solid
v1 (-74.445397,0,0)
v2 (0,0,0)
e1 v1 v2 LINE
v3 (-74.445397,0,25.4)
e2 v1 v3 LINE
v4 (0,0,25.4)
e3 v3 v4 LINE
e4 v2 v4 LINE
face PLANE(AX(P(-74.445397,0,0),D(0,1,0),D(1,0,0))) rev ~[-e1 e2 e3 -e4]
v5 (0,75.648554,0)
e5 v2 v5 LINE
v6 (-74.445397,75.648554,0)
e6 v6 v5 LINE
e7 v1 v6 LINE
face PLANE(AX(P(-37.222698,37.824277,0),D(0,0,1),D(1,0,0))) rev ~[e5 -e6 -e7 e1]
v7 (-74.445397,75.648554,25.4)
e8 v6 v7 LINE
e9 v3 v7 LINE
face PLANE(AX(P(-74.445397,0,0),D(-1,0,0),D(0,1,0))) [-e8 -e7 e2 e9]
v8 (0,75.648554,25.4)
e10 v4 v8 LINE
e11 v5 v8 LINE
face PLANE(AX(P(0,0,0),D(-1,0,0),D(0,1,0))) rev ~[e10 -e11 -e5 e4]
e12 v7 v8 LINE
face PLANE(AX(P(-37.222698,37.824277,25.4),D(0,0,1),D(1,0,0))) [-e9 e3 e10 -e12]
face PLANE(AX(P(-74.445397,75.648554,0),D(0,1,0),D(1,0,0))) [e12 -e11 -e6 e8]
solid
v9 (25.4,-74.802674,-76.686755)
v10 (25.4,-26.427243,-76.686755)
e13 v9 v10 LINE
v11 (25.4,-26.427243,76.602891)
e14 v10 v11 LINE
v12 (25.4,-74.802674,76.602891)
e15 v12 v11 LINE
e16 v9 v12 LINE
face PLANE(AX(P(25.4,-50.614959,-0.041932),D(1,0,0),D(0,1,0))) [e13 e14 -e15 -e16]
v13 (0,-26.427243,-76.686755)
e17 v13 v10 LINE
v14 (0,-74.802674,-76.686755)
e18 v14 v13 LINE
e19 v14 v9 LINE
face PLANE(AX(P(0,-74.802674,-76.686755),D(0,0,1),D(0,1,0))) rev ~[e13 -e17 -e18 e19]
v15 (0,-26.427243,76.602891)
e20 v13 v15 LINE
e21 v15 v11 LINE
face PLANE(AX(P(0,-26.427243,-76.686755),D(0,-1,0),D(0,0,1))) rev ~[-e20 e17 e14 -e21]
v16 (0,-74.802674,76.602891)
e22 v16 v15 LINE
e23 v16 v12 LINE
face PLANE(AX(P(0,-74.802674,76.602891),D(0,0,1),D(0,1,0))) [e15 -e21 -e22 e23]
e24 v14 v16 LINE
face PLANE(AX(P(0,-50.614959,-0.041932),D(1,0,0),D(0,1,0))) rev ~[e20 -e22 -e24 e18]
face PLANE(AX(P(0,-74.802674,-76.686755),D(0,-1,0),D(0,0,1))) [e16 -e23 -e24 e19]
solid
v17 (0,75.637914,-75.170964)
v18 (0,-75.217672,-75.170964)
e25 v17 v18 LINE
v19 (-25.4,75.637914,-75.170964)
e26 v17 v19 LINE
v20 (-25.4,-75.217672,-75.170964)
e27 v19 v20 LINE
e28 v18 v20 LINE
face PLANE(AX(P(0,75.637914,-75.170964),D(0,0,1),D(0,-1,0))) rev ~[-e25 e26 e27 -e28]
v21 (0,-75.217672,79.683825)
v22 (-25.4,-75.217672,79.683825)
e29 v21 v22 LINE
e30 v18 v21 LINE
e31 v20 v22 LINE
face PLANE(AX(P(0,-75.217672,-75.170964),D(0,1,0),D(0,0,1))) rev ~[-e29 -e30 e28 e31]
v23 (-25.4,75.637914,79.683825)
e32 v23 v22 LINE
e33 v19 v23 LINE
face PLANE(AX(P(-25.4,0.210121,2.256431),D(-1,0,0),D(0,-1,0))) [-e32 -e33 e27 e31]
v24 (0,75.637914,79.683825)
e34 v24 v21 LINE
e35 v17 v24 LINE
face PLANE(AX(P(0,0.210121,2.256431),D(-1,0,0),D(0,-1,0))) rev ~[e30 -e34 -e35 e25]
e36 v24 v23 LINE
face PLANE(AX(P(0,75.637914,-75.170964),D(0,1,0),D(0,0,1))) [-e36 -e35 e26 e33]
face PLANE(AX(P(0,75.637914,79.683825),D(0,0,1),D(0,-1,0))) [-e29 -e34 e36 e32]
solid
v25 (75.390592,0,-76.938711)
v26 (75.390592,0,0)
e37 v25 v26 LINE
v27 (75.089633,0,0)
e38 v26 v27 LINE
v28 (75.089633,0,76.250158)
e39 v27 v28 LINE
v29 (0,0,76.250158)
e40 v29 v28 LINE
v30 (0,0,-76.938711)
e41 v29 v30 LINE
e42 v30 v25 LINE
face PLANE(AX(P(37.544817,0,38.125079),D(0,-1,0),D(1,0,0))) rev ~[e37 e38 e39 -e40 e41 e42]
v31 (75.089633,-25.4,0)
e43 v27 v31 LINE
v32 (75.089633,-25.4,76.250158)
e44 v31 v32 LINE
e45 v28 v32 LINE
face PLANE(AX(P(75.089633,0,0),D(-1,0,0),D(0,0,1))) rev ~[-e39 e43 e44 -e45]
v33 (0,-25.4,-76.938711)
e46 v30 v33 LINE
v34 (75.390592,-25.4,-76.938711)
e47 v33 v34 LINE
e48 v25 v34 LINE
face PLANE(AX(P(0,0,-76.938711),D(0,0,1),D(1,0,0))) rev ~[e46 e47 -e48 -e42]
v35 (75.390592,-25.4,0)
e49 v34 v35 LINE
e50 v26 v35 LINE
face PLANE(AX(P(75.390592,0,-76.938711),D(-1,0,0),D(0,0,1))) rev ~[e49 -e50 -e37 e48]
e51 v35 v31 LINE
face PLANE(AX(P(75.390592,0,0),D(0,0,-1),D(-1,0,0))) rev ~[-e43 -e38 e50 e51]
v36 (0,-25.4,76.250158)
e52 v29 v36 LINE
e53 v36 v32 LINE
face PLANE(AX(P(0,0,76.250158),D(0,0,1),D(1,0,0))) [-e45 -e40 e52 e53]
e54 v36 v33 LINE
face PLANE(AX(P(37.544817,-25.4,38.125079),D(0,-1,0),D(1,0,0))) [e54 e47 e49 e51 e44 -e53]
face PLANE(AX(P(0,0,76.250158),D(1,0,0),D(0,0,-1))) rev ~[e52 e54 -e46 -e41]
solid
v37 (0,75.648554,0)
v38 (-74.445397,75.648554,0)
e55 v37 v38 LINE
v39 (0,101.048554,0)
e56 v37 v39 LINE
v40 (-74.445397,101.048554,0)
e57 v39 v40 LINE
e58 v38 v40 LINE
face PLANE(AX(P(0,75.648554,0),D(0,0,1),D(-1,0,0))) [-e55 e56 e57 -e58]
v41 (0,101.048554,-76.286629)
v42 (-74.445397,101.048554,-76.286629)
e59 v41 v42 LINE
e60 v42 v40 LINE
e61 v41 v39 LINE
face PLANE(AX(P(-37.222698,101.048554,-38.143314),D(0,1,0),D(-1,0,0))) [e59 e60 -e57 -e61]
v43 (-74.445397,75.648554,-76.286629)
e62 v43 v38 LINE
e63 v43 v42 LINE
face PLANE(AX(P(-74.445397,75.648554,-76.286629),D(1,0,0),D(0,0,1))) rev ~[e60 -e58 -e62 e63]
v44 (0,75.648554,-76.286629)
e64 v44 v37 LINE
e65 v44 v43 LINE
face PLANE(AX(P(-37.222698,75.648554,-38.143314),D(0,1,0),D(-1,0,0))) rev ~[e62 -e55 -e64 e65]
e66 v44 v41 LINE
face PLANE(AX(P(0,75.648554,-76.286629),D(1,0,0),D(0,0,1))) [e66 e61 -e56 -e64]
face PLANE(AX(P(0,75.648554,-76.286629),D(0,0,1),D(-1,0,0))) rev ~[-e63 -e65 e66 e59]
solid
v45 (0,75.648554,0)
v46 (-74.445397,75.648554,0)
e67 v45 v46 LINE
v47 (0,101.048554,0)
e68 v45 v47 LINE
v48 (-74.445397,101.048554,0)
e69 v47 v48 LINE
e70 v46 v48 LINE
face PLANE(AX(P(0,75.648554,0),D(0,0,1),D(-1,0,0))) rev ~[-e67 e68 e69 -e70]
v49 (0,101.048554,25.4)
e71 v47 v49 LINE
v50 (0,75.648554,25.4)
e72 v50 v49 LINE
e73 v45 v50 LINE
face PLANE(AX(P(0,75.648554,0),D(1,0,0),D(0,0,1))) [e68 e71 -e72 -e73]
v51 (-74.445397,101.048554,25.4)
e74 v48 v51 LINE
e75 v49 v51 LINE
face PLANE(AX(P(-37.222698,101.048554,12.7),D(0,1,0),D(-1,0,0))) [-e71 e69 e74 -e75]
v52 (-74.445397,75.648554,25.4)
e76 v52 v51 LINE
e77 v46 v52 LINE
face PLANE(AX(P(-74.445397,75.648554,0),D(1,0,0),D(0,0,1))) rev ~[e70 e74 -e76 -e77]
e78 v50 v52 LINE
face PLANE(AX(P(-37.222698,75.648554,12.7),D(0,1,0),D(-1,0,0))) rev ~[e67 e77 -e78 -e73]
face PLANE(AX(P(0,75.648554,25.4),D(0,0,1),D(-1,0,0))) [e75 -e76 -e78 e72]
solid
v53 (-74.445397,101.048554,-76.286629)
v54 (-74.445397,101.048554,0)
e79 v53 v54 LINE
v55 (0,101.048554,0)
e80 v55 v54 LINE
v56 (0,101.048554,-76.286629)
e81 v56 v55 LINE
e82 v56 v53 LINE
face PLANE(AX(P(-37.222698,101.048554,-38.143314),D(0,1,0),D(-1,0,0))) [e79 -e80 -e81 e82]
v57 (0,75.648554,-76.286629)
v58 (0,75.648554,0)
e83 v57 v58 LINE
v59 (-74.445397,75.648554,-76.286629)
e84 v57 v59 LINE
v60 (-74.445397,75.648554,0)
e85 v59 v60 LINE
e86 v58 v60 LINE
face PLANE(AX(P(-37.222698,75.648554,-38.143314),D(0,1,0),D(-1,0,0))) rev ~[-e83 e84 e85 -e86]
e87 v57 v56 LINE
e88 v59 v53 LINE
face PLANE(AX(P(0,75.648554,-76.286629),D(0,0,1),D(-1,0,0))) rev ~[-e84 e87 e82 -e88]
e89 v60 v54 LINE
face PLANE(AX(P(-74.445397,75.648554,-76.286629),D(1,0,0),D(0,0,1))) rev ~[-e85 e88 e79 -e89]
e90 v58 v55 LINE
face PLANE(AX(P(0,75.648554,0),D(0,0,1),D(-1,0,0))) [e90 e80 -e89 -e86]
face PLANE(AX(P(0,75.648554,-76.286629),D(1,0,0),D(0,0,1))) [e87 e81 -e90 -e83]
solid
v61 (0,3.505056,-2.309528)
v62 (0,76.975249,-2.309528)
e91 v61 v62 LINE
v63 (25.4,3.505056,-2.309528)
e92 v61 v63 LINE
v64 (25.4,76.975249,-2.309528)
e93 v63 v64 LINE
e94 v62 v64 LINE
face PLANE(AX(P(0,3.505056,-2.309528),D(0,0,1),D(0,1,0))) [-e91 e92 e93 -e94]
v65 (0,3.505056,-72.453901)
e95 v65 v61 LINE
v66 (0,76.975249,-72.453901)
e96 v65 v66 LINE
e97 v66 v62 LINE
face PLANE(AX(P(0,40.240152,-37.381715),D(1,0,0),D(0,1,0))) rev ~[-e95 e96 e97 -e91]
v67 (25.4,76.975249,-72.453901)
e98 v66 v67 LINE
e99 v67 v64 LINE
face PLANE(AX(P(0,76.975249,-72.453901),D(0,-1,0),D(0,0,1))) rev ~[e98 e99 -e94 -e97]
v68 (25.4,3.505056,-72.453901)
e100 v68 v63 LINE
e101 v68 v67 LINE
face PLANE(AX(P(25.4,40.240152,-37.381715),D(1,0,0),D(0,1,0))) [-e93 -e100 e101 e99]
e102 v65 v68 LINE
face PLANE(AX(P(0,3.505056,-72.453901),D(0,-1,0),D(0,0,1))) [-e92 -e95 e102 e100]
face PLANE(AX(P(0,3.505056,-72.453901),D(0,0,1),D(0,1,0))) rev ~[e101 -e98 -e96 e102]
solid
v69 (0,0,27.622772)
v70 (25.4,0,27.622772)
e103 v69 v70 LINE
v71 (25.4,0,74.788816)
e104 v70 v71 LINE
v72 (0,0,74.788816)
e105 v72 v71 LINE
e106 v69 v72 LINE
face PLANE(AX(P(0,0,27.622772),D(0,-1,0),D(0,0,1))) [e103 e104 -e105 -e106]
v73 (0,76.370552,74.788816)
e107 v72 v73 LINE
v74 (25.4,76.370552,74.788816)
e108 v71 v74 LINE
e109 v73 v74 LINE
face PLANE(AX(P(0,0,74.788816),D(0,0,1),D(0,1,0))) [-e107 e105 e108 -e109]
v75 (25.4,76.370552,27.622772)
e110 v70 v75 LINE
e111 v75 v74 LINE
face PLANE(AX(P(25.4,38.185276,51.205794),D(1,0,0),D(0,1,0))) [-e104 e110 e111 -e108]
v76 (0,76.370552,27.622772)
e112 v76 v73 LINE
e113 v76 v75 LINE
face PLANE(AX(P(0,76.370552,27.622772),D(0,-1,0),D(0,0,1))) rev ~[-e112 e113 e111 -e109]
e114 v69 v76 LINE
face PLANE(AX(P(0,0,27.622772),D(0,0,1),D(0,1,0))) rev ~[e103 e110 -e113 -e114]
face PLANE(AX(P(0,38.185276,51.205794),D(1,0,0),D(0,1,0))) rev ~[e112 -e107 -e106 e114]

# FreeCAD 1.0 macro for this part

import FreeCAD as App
import Part
import Sketcher

V = App.Vector
Q = App.Units.Quantity


def add_polygon(sketch, points):
    """Adds a closed chain of lines whose ends are joined by coincident constraints."""
    first, n = sketch.GeometryCount, len(points)
    for a, b in zip(points, points[1:] + points[:1]):
        sketch.addGeometry(Part.LineSegment(App.Vector(*a, 0), App.Vector(*b, 0)), False)
    for i in range(n):
        sketch.addConstraint(Sketcher.Constraint("Coincident", first + i, 2, first + (i + 1) % n, 1))

doc = App.newDocument("Part")
params = doc.addObject("Spreadsheet::Sheet", "Params")
for row, (alias, value) in enumerate([
    ("pad1_length", "1 in"),
    ("pad2_length", "1 in"),
    ("sketch3_height", "1 in"),
    ("pad3_length", "1 in"),
    ("pad4_length", "1 in"),
    ("pad5_length", "1 in"),
    ("pad6_length", "1 in"),
    ("pad7_length", "1 in"),
    ("pad8_length", "1 in"),
    ("pad9_length", "1 in"),
], start=1):
    params.set(f"A{row}", alias)
    params.set(f"B{row}", "=" + value)
    params.setAlias(f"B{row}", alias)

body = doc.addObject("PartDesign::Body", "Body")

# Sketch on XY plane
sketch1 = body.newObject("Sketcher::SketchObject", "Sketch")
sketch1.AttachmentSupport = (doc.getObject("XY_Plane"), [""])
sketch1.MapMode = "FlatFace"
add_polygon(sketch1, [(-74, 76), (-74, 0), (0, 0), (0, 76)])  # lines 0-3
sketch1.addConstraint([
    Sketcher.Constraint("Vertical", 0),
    Sketcher.Constraint("Horizontal", 1),
    Sketcher.Constraint("Vertical", 2),
    Sketcher.Constraint("Horizontal", 3),
    Sketcher.Constraint("Coincident", 1, 2, -1, 1),
    Sketcher.Constraint("DistanceX", 1, 1, 1, 2, 74.445397),
    Sketcher.Constraint("DistanceY", 0, 2, 0, 1, 75.648554),
])
pad1 = body.newObject("PartDesign::Pad", "Pad")
pad1.Profile = sketch1
pad1.setExpression("Length", "Params.pad1_length")
body2 = doc.addObject("PartDesign::Body", "Body001")

# Sketch on XZ plane
sketch2 = body2.newObject("Sketcher::SketchObject", "Sketch001")
sketch2.AttachmentSupport = (doc.getObject("XZ_Plane001"), [""])
sketch2.MapMode = "FlatFace"
sketch2.AttachmentOffset = App.Placement(V(0, 0, -75.648554), App.Rotation())
add_polygon(sketch2, [(0, 0), (0, -76), (-74, -76), (-74, 0)])  # lines 0-3
sketch2.addConstraint([
    Sketcher.Constraint("Vertical", 0),
    Sketcher.Constraint("Horizontal", 1),
    Sketcher.Constraint("Vertical", 2),
    Sketcher.Constraint("Horizontal", 3),
    Sketcher.Constraint("Coincident", 3, 2, -1, 1),
    Sketcher.Constraint("DistanceY", 0, 2, 0, 1, 76.286629),
    Sketcher.Constraint("DistanceX", 1, 2, 1, 1, 74.445397),
])
pad2 = body2.newObject("PartDesign::Pad", "Pad001")
pad2.Profile = sketch2
pad2.setExpression("Length", "Params.pad2_length")
pad2.Reversed = True
body3 = doc.addObject("PartDesign::Body", "Body002")

# Sketch on XZ plane
sketch3 = body3.newObject("Sketcher::SketchObject", "Sketch002")
sketch3.AttachmentSupport = (doc.getObject("XZ_Plane002"), [""])
sketch3.MapMode = "FlatFace"
sketch3.AttachmentOffset = App.Placement(V(0, 0, -75.648554), App.Rotation())
add_polygon(sketch3, [(0, 25), (0, 0), (-74, 0), (-74, 25)])  # lines 0-3
sketch3.addConstraint([
    Sketcher.Constraint("Vertical", 0),
    Sketcher.Constraint("Horizontal", 1),
    Sketcher.Constraint("Vertical", 2),
    Sketcher.Constraint("Horizontal", 3),
    Sketcher.Constraint("Coincident", 0, 2, -1, 1),
    Sketcher.Constraint("DistanceY", 0, 2, 0, 1, Q("1 in")),
    Sketcher.Constraint("DistanceX", 1, 2, 1, 1, 74.445397),
])
sketch3.setExpression("Constraints[9]", "Params.sketch3_height")
pad3 = body3.newObject("PartDesign::Pad", "Pad002")
pad3.Profile = sketch3
pad3.setExpression("Length", "Params.pad3_length")
pad3.Reversed = True
body4 = doc.addObject("PartDesign::Body", "Body003")

# Sketch on XZ plane
sketch4 = body4.newObject("Sketcher::SketchObject", "Sketch003")
sketch4.AttachmentSupport = (doc.getObject("XZ_Plane003"), [""])
sketch4.MapMode = "FlatFace"
sketch4.AttachmentOffset = App.Placement(V(0, 0, -75.648554), App.Rotation())
add_polygon(sketch4, [(0, 0), (0, -76), (-74, -76), (-74, 0)])  # lines 0-3
sketch4.addConstraint([
    Sketcher.Constraint("Vertical", 0),
    Sketcher.Constraint("Horizontal", 1),
    Sketcher.Constraint("Vertical", 2),
    Sketcher.Constraint("Horizontal", 3),
    Sketcher.Constraint("Coincident", 3, 2, -1, 1),
    Sketcher.Constraint("DistanceY", 0, 2, 0, 1, 76.286629),
    Sketcher.Constraint("DistanceX", 1, 2, 1, 1, 74.445397),
])
pad4 = body4.newObject("PartDesign::Pad", "Pad003")
pad4.Profile = sketch4
pad4.setExpression("Length", "Params.pad4_length")
pad4.Reversed = True
body5 = doc.addObject("PartDesign::Body", "Body004")

# Sketch on XZ plane
sketch5 = body5.newObject("Sketcher::SketchObject", "Sketch004")
sketch5.AttachmentSupport = (doc.getObject("XZ_Plane004"), [""])
sketch5.MapMode = "FlatFace"
add_polygon(sketch5, [(0, 76.25), (0, -76.94), (75.39, -76.94), (75.39, 0), (75.09, 0), (75.09, 76.25)])  # lines 0-5
sketch5.addConstraint([
    Sketcher.Constraint("Vertical", 0),
    Sketcher.Constraint("Horizontal", 1),
    Sketcher.Constraint("Vertical", 2),
    Sketcher.Constraint("Horizontal", 3),
    Sketcher.Constraint("Vertical", 4),
    Sketcher.Constraint("Horizontal", 5),
    Sketcher.Constraint("PointOnObject", 0, 2, -2),
    Sketcher.Constraint("PointOnObject", 2, 2, -1),
    Sketcher.Constraint("DistanceX", 3, 2, 3, 1, 0.300959),
    Sketcher.Constraint("DistanceY", 0, 2, 0, 1, 153.188869),
    Sketcher.Constraint("DistanceY", 2, 1, 2, 2, 76.938711),
    Sketcher.Constraint("DistanceX", 1, 1, 1, 2, 75.390592),
])
pad5 = body5.newObject("PartDesign::Pad", "Pad004")
pad5.Profile = sketch5
pad5.setExpression("Length", "Params.pad5_length")
body6 = doc.addObject("PartDesign::Body", "Body005")

# Sketch on YZ plane
sketch6 = body6.newObject("Sketcher::SketchObject", "Sketch005")
sketch6.AttachmentSupport = (doc.getObject("YZ_Plane005"), [""])
sketch6.MapMode = "FlatFace"
add_polygon(sketch6, [(-75, 77), (-75, -77), (-26, -77), (-26, 77)])  # lines 0-3
sketch6.addConstraint([
    Sketcher.Constraint("Vertical", 0),
    Sketcher.Constraint("Horizontal", 1),
    Sketcher.Constraint("Vertical", 2),
    Sketcher.Constraint("Horizontal", 3),
    Sketcher.Constraint("DistanceX", 1, 1, 1, 2, 48.375431),
    Sketcher.Constraint("DistanceY", 0, 2, 0, 1, 153.289646),
    Sketcher.Constraint("DistanceY", -1, 1, 2, 2, 76.602891),
    Sketcher.Constraint("DistanceX", 0, 2, -1, 1, 74.802674),
])
pad6 = body6.newObject("PartDesign::Pad", "Pad005")
pad6.Profile = sketch6
pad6.setExpression("Length", "Params.pad6_length")
body7 = doc.addObject("PartDesign::Body", "Body006")

# Sketch on YZ plane
sketch7 = body7.newObject("Sketcher::SketchObject", "Sketch006")
sketch7.AttachmentSupport = (doc.getObject("YZ_Plane006"), [""])
sketch7.MapMode = "FlatFace"
add_polygon(sketch7, [(0, 75), (0, 28), (76, 28), (76, 75)])  # lines 0-3
sketch7.addConstraint([
    Sketcher.Constraint("Vertical", 0),
    Sketcher.Constraint("Horizontal", 1),
    Sketcher.Constraint("Vertical", 2),
    Sketcher.Constraint("Horizontal", 3),
    Sketcher.Constraint("PointOnObject", 0, 2, -2),
    Sketcher.Constraint("DistanceX", 1, 1, 1, 2, 76.370552),
    Sketcher.Constraint("DistanceY", 0, 2, 0, 1, 47.166044),
    Sketcher.Constraint("DistanceY", -1, 1, 0, 2, 27.622772),
])
pad7 = body7.newObject("PartDesign::Pad", "Pad006")
pad7.Profile = sketch7
pad7.setExpression("Length", "Params.pad7_length")
body8 = doc.addObject("PartDesign::Body", "Body007")

# Sketch on YZ plane
sketch8 = body8.newObject("Sketcher::SketchObject", "Sketch007")
sketch8.AttachmentSupport = (doc.getObject("YZ_Plane007"), [""])
sketch8.MapMode = "FlatFace"
add_polygon(sketch8, [(4, -2), (4, -72), (77, -72), (77, -2)])  # lines 0-3
sketch8.addConstraint([
    Sketcher.Constraint("Vertical", 0),
    Sketcher.Constraint("Horizontal", 1),
    Sketcher.Constraint("Vertical", 2),
    Sketcher.Constraint("Horizontal", 3),
    Sketcher.Constraint("DistanceY", 0, 2, -1, 1, 72.453901),
    Sketcher.Constraint("DistanceX", 1, 1, 1, 2, 73.470193),
    Sketcher.Constraint("DistanceY", 0, 2, 0, 1, 70.144373),
    Sketcher.Constraint("DistanceX", -1, 1, 1, 2, 76.975249),
])
pad8 = body8.newObject("PartDesign::Pad", "Pad007")
pad8.Profile = sketch8
pad8.setExpression("Length", "Params.pad8_length")
body9 = doc.addObject("PartDesign::Body", "Body008")

# Sketch on YZ plane
sketch9 = body9.newObject("Sketcher::SketchObject", "Sketch008")
sketch9.AttachmentSupport = (doc.getObject("YZ_Plane008"), [""])
sketch9.MapMode = "FlatFace"
add_polygon(sketch9, [(76, 80), (76, -75), (-75, -75), (-75, 80)])  # lines 0-3
sketch9.addConstraint([
    Sketcher.Constraint("Vertical", 0),
    Sketcher.Constraint("Horizontal", 1),
    Sketcher.Constraint("Vertical", 2),
    Sketcher.Constraint("Horizontal", 3),
    Sketcher.Constraint("DistanceY", 0, 2, 0, 1, 154.854789),
    Sketcher.Constraint("DistanceX", 1, 2, 1, 1, 150.855586),
    Sketcher.Constraint("DistanceX", 1, 2, -1, 1, 75.217672),
    Sketcher.Constraint("DistanceY", 0, 2, -1, 1, 75.170964),
])
pad9 = body9.newObject("PartDesign::Pad", "Pad008")
pad9.Profile = sketch9
pad9.setExpression("Length", "Params.pad9_length")
pad9.Reversed = True

doc.recompute()
